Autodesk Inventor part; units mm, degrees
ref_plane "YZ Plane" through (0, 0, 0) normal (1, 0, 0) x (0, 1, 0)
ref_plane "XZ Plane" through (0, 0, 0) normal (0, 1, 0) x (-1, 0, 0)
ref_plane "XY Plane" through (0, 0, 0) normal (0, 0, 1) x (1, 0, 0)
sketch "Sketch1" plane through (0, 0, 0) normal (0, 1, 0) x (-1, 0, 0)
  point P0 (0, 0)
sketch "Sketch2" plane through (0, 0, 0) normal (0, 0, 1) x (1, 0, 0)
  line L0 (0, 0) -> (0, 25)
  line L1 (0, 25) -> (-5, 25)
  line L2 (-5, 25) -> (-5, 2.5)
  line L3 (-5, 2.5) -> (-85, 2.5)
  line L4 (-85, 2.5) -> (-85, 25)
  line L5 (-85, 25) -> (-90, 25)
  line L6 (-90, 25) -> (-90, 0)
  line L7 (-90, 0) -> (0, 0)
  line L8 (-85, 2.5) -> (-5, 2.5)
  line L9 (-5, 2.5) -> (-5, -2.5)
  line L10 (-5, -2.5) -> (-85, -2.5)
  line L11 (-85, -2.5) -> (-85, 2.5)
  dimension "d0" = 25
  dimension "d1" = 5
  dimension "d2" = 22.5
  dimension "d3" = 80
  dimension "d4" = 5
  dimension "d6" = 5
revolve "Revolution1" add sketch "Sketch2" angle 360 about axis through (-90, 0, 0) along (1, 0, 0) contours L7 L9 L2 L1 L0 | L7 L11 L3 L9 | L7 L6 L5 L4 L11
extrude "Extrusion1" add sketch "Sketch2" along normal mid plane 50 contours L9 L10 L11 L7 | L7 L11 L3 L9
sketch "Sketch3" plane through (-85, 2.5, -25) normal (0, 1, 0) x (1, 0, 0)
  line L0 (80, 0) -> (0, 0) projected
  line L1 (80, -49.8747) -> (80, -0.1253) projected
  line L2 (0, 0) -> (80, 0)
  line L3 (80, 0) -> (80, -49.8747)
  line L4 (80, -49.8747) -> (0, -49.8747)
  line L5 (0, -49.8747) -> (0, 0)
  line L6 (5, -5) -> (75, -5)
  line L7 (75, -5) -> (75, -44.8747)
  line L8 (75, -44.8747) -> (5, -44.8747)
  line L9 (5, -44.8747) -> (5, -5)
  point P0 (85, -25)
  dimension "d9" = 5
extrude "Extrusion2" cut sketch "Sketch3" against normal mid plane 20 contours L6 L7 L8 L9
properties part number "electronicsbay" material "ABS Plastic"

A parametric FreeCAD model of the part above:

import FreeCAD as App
import Part
import Sketcher
from FreeCAD import Vector

doc = App.newDocument("Part")
body = doc.addObject("PartDesign::Body", "Body")

# Sketch on XY plane
sketch1 = doc.addObject("Sketcher::SketchObject", "Sketch")
body.addObject(sketch1)
sketch1.AttachmentSupport = (doc.XY_Plane, [""])
sketch1.MapMode = "FlatFace"
sketch1.addGeometry(Part.LineSegment(Vector(0, 0, 0), Vector(0, 25, 0)), False)
sketch1.addGeometry(Part.LineSegment(Vector(0, 25, 0), Vector(-5, 25, 0)), False)
sketch1.addGeometry(Part.LineSegment(Vector(-5, 25, 0), Vector(-5, 2, 0)), False)
sketch1.addGeometry(Part.LineSegment(Vector(-5, 2, 0), Vector(-85, 2, 0)), False)
sketch1.addGeometry(Part.LineSegment(Vector(-85, 2, 0), Vector(-85, 25, 0)), False)
sketch1.addGeometry(Part.LineSegment(Vector(-85, 25, 0), Vector(-90, 25, 0)), False)
sketch1.addGeometry(Part.LineSegment(Vector(-90, 25, 0), Vector(-90, 0, 0)), False)
sketch1.addGeometry(Part.LineSegment(Vector(-90, 0, 0), Vector(0, 0, 0)), False)
sketch1.addConstraint(Sketcher.Constraint("Coincident", 0, 2, 1, 1))
sketch1.addConstraint(Sketcher.Constraint("Coincident", 1, 2, 2, 1))
sketch1.addConstraint(Sketcher.Constraint("Coincident", 2, 2, 3, 1))
sketch1.addConstraint(Sketcher.Constraint("Coincident", 3, 2, 4, 1))
sketch1.addConstraint(Sketcher.Constraint("Coincident", 4, 2, 5, 1))
sketch1.addConstraint(Sketcher.Constraint("Coincident", 5, 2, 6, 1))
sketch1.addConstraint(Sketcher.Constraint("Coincident", 6, 2, 7, 1))
sketch1.addConstraint(Sketcher.Constraint("Coincident", 7, 2, 0, 1))
sketch1.addConstraint(Sketcher.Constraint("Vertical", 0))
sketch1.addConstraint(Sketcher.Constraint("Horizontal", 1))
sketch1.addConstraint(Sketcher.Constraint("Vertical", 2))
sketch1.addConstraint(Sketcher.Constraint("Horizontal", 3))
sketch1.addConstraint(Sketcher.Constraint("Vertical", 4))
sketch1.addConstraint(Sketcher.Constraint("Horizontal", 5))
sketch1.addConstraint(Sketcher.Constraint("Vertical", 6))
sketch1.addConstraint(Sketcher.Constraint("Horizontal", 7))
sketch1.addConstraint(Sketcher.Constraint("Coincident", 7, 2, -1, 1))
sketch1.addConstraint(Sketcher.Constraint("Horizontal", 1, 2, 4, 2))
sketch1.addConstraint(Sketcher.Constraint("Equal", 1, 5))
sketch1.addConstraint(Sketcher.Constraint("DistanceX", 1, 2, 1, 1, 5.0))
sketch1.addConstraint(Sketcher.Constraint("DistanceX", 3, 2, 3, 1, 80.0))
sketch1.addConstraint(Sketcher.Constraint("DistanceY", 0, 1, 0, 2, 25.0))
sketch1.addConstraint(Sketcher.Constraint("DistanceY", 2, 2, 2, 1, 22.5))
revolution = doc.addObject("PartDesign::Revolution", "Revolution")
body.addObject(revolution)
revolution.Profile = sketch1
revolution.ReferenceAxis = (sketch1, ["H_Axis"])
revolution.Angle = 360

# Sketch on XY plane
sketch2 = doc.addObject("Sketcher::SketchObject", "Sketch001")
body.addObject(sketch2)
sketch2.AttachmentSupport = (doc.XY_Plane, [""])
sketch2.MapMode = "FlatFace"
sketch2.addGeometry(Part.LineSegment(Vector(-5, -2, 0), Vector(-5, 2, 0)), False)
sketch2.addGeometry(Part.LineSegment(Vector(-5, 2, 0), Vector(-85, 2, 0)), False)
sketch2.addGeometry(Part.LineSegment(Vector(-85, 2, 0), Vector(-85, -2, 0)), False)
sketch2.addGeometry(Part.LineSegment(Vector(-85, -2, 0), Vector(-5, -2, 0)), False)
sketch2.addConstraint(Sketcher.Constraint("Coincident", 0, 2, 1, 1))
sketch2.addConstraint(Sketcher.Constraint("Coincident", 1, 2, 2, 1))
sketch2.addConstraint(Sketcher.Constraint("Coincident", 2, 2, 3, 1))
sketch2.addConstraint(Sketcher.Constraint("Coincident", 3, 2, 0, 1))
sketch2.addConstraint(Sketcher.Constraint("Vertical", 0))
sketch2.addConstraint(Sketcher.Constraint("Horizontal", 1))
sketch2.addConstraint(Sketcher.Constraint("Vertical", 2))
sketch2.addConstraint(Sketcher.Constraint("Horizontal", 3))
sketch2.addConstraint(Sketcher.Constraint("DistanceX", 1, 2, 1, 1, 80.0))
sketch2.addConstraint(Sketcher.Constraint("DistanceY", 0, 1, 0, 2, 5.0))
sketch2.addConstraint(Sketcher.Constraint("DistanceX", 0, 2, -1, 1, 5.0))
sketch2.addConstraint(Sketcher.Constraint("DistanceY", -1, 1, 0, 2, 2.5))
pad1 = doc.addObject("PartDesign::Pad", "Pad")
body.addObject(pad1)
pad1.Profile = sketch2
pad1.Length = 50
pad1.Midplane = True

# Sketch on XZ plane
sketch3 = doc.addObject("Sketcher::SketchObject", "Sketch002")
body.addObject(sketch3)
sketch3.AttachmentSupport = (doc.XZ_Plane, [""])
sketch3.MapMode = "FlatFace"
sketch3.AttachmentOffset = App.Placement(Vector(0, 0, -2.5), App.Rotation())
sketch3.addGeometry(Part.LineSegment(Vector(-10, -20, 0), Vector(-80, -20, 0)), False)
sketch3.addGeometry(Part.LineSegment(Vector(-80, -20, 0), Vector(-80, 20, 0)), False)
sketch3.addGeometry(Part.LineSegment(Vector(-80, 20, 0), Vector(-10, 20, 0)), False)
sketch3.addGeometry(Part.LineSegment(Vector(-10, 20, 0), Vector(-10, -20, 0)), False)
sketch3.addConstraint(Sketcher.Constraint("Coincident", 0, 2, 1, 1))
sketch3.addConstraint(Sketcher.Constraint("Coincident", 1, 2, 2, 1))
sketch3.addConstraint(Sketcher.Constraint("Coincident", 2, 2, 3, 1))
sketch3.addConstraint(Sketcher.Constraint("Coincident", 3, 2, 0, 1))
sketch3.addConstraint(Sketcher.Constraint("Horizontal", 0))
sketch3.addConstraint(Sketcher.Constraint("Vertical", 1))
sketch3.addConstraint(Sketcher.Constraint("Horizontal", 2))
sketch3.addConstraint(Sketcher.Constraint("Vertical", 3))
sketch3.addConstraint(Sketcher.Constraint("DistanceX", 0, 2, 0, 1, 70.0))
sketch3.addConstraint(Sketcher.Constraint("DistanceX", 0, 2, -1, 1, 80.0))
sketch3.addConstraint(Sketcher.Constraint("DistanceY", 0, 2, -1, 1, 20.0))
sketch3.addConstraint(Sketcher.Constraint("DistanceY", 1, 1, 1, 2, 39.8747))
pocket1 = doc.addObject("PartDesign::Pocket", "Pocket")
body.addObject(pocket1)
pocket1.Profile = sketch3
pocket1.Length = 20
pocket1.Midplane = True

doc.recompute()
